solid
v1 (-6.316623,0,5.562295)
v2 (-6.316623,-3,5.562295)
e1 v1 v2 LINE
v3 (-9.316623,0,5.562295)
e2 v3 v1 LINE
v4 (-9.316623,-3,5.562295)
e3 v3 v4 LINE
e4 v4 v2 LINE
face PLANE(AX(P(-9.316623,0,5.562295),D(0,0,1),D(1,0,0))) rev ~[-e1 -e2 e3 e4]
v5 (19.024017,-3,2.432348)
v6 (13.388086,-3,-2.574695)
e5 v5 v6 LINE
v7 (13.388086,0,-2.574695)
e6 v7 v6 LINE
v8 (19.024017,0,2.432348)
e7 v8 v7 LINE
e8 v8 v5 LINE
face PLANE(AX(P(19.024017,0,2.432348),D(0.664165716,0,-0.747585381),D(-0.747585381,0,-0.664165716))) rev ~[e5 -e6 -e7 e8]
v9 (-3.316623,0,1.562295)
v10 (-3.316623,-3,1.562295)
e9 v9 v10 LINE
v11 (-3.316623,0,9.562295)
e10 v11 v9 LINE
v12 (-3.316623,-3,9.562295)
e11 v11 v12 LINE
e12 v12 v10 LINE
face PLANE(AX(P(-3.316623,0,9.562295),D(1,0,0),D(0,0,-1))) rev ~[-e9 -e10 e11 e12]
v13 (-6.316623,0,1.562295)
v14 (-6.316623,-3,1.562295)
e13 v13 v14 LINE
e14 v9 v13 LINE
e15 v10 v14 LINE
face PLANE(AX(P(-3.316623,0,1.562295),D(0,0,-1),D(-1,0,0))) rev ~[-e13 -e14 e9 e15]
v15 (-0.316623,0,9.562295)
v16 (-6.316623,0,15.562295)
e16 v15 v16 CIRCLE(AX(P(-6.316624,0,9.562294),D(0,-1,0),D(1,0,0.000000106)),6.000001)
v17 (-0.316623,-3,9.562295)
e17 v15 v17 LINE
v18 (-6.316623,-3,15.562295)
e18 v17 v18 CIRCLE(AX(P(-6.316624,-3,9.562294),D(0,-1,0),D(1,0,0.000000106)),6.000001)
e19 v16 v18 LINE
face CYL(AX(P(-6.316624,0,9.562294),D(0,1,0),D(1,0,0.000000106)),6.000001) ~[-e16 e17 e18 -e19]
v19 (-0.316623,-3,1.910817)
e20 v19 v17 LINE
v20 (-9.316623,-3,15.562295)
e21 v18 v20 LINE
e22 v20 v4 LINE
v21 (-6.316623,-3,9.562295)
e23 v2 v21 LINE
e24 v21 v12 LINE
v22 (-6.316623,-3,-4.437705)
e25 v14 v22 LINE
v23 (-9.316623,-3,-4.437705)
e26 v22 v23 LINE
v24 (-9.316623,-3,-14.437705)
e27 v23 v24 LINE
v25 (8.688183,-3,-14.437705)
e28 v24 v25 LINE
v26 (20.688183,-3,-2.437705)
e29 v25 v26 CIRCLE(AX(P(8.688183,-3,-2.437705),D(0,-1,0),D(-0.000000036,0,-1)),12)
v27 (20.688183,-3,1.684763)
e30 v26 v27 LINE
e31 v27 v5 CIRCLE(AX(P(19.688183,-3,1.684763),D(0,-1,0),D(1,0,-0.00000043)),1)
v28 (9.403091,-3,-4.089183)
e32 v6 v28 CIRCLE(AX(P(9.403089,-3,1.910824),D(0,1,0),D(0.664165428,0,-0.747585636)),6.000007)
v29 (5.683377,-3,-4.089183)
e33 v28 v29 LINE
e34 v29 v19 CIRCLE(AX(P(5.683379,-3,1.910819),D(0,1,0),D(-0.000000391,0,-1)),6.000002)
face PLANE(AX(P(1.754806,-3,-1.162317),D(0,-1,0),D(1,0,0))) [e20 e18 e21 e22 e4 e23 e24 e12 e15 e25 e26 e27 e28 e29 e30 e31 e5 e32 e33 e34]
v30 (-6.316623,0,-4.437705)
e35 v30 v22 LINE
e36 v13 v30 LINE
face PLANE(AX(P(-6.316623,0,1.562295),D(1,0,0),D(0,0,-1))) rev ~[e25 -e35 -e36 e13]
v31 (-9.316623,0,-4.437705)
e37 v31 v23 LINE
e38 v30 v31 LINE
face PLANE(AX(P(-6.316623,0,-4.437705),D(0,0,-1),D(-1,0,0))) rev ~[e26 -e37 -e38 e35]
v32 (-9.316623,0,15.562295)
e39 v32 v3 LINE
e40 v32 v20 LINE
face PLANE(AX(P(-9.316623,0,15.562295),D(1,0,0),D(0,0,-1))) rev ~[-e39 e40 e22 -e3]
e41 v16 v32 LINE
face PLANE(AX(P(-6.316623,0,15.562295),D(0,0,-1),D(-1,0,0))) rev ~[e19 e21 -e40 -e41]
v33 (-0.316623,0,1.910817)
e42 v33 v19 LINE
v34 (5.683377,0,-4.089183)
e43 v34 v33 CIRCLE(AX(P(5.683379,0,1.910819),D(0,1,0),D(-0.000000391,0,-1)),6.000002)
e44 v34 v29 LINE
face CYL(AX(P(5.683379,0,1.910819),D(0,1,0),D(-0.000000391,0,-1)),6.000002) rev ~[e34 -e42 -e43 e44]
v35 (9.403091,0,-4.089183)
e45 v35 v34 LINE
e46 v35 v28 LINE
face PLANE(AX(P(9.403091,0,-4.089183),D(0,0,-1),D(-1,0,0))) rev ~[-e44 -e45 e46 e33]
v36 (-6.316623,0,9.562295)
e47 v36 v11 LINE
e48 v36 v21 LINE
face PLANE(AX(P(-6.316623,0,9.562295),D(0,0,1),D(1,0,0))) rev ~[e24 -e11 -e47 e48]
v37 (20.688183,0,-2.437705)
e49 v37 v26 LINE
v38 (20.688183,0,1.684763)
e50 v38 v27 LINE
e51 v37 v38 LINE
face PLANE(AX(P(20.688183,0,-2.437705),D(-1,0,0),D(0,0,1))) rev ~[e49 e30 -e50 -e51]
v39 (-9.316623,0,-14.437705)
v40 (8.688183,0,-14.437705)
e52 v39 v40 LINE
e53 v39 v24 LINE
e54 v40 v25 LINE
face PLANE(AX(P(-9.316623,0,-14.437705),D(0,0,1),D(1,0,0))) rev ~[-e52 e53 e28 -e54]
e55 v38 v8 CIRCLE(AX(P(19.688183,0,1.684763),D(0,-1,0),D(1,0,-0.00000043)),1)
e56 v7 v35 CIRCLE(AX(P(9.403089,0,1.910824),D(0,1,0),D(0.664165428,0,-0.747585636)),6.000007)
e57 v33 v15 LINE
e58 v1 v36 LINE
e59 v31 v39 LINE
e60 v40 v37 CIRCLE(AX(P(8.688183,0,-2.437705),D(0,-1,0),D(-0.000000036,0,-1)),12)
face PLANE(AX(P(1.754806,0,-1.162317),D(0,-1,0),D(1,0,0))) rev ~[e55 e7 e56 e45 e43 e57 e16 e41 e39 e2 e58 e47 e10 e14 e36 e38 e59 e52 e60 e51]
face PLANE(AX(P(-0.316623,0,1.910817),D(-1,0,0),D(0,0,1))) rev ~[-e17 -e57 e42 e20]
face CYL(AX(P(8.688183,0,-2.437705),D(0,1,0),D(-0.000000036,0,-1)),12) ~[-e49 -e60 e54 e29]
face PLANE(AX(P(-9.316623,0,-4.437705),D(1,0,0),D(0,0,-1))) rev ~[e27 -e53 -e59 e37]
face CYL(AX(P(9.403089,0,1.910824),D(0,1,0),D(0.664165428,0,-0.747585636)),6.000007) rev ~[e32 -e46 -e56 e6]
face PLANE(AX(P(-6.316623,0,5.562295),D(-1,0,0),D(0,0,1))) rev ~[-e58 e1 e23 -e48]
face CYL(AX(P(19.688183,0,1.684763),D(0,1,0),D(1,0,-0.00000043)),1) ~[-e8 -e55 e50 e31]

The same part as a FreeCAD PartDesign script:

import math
import FreeCAD as App
import Part
import Sketcher

V = App.Vector
Q = App.Units.Quantity

doc = App.newDocument("Part")
body = doc.addObject("PartDesign::Body", "Body")

sketch1 = body.newObject("Sketcher::SketchObject", "Sketch")
sketch1.AttachmentSupport = (doc.getObject("XZ_Plane"), [""])
sketch1.MapMode = "FlatFace"
sketch1.addGeometry([
    Part.LineSegment(V(-9.3, -4.4, 0), V(-9.3, -14.4, 0)),
    Part.LineSegment(V(-9.3, -14.4, 0), V(8.7, -14.4, 0)),
    Part.ArcOfCircle(Part.Circle(V(8.7, -2.4, 0), V(0, 0, 1), 12), math.radians(-90), math.radians(0)),
    Part.LineSegment(V(20.7, -2.4, 0), V(20.7, 1.7, 0)),
    Part.ArcOfCircle(Part.Circle(V(19.7, 1.7, 0), V(0, 0, 1), 1), math.radians(0), math.radians(132)),
    Part.LineSegment(V(19, 2.4, 0), V(13.4, -2.6, 0)),
    Part.ArcOfCircle(Part.Circle(V(9.4, 1.9, 0), V(0, 0, 1), 6), math.radians(-90), math.radians(-48)),
    Part.LineSegment(V(9.4, -4.1, 0), V(5.7, -4.1, 0)),
    Part.ArcOfCircle(Part.Circle(V(5.7, 1.9, 0), V(0, 0, 1), 6), math.radians(-180), math.radians(-90)),
    Part.LineSegment(V(-0.3, 1.9, 0), V(-0.3, 9.6, 0)),
    Part.ArcOfCircle(Part.Circle(V(-6.3, 9.6, 0), V(0, 0, 1), 6), math.radians(0), math.radians(90)),
    Part.LineSegment(V(-6.3, 15.6, 0), V(-9.3, 15.6, 0)),
    Part.LineSegment(V(-9.3, 15.6, 0), V(-9.3, 5.6, 0)),
    Part.LineSegment(V(-9.3, 5.6, 0), V(-6.3, 5.6, 0)),
    Part.LineSegment(V(-6.3, 5.6, 0), V(-6.3, 9.6, 0)),
    Part.LineSegment(V(-6.3, 9.6, 0), V(-3.3, 9.6, 0)),
    Part.LineSegment(V(-3.3, 9.6, 0), V(-3.3, 1.6, 0)),
    Part.LineSegment(V(-3.3, 1.6, 0), V(-6.3, 1.6, 0)),
    Part.LineSegment(V(-6.3, 1.6, 0), V(-6.3, -4.4, 0)),
    Part.LineSegment(V(-6.3, -4.4, 0), V(-9.3, -4.4, 0)),
], False)
sketch1.addConstraint([
    Sketcher.Constraint("Coincident", 0, 2, 1, 1),
    Sketcher.Constraint("Tangent", 1, 2, 2, 1),
    Sketcher.Constraint("Tangent", 2, 2, 3, 1),
    Sketcher.Constraint("Tangent", 3, 2, 4, 1),
    Sketcher.Constraint("Tangent", 4, 2, 5, 1),
    Sketcher.Constraint("Tangent", 5, 2, 6, 2),
    Sketcher.Constraint("Tangent", 6, 1, 7, 1),
    Sketcher.Constraint("Tangent", 7, 2, 8, 2),
    Sketcher.Constraint("Tangent", 8, 1, 9, 1),
    Sketcher.Constraint("Tangent", 9, 2, 10, 1),
    Sketcher.Constraint("Tangent", 10, 2, 11, 1),
    Sketcher.Constraint("Coincident", 11, 2, 12, 1),
    Sketcher.Constraint("Coincident", 12, 2, 13, 1),
    Sketcher.Constraint("Coincident", 13, 2, 14, 1),
    Sketcher.Constraint("Coincident", 14, 2, 15, 1),
    Sketcher.Constraint("Coincident", 15, 2, 16, 1),
    Sketcher.Constraint("Coincident", 16, 2, 17, 1),
    Sketcher.Constraint("Coincident", 17, 2, 18, 1),
    Sketcher.Constraint("Coincident", 18, 2, 19, 1),
    Sketcher.Constraint("Coincident", 19, 2, 0, 1),
    Sketcher.Constraint("Vertical", 0),
    Sketcher.Constraint("Horizontal", 1),
    Sketcher.Constraint("Vertical", 3),
    Sketcher.Constraint("Horizontal", 7),
    Sketcher.Constraint("Vertical", 9),
    Sketcher.Constraint("Horizontal", 11),
    Sketcher.Constraint("Vertical", 12),
    Sketcher.Constraint("Horizontal", 13),
    Sketcher.Constraint("Vertical", 14),
    Sketcher.Constraint("Horizontal", 15),
    Sketcher.Constraint("Vertical", 16),
    Sketcher.Constraint("Horizontal", 17),
    Sketcher.Constraint("Vertical", 18),
    Sketcher.Constraint("Horizontal", 19),
    Sketcher.Constraint("Coincident", 14, 2, 10, 3),
    Sketcher.Constraint("Equal", 8, 10),
    Sketcher.Constraint("Vertical", 0, 2, 11, 2),
    Sketcher.Constraint("Vertical", 14, 2, 17, 2),
    Sketcher.Constraint("Equal", 13, 15),
    Sketcher.Constraint("Equal", 0, 12),
    Sketcher.Constraint("Radius", 2, Q("12 mm")),
    Sketcher.Constraint("Radius", 4, Q("1 mm")),
    Sketcher.Constraint("Radius", 10, Q("6.000001 mm")),
    Sketcher.Constraint("DistanceX", 11, 2, 11, 1, Q("3 mm")),
    Sketcher.Constraint("DistanceY", 0, 2, 0, 1, Q("10 mm")),
    Sketcher.Constraint("DistanceY", 16, 2, 16, 1, Q("8 mm")),
    Sketcher.Constraint("DistanceY", 18, 2, 18, 1, Q("6 mm")),
    Sketcher.Constraint("Radius", 6, Q("6.000007 mm")),
    Sketcher.Constraint("DistanceY", 9, 1, 9, 2, Q("7.651478 mm")),
    Sketcher.Constraint("DistanceX", 1, 1, 1, 2, Q("18.004806 mm")),
    Sketcher.Constraint("DistanceX", 7, 2, 7, 1, Q("3.719714 mm")),
    Sketcher.Constraint("DistanceY", 3, 1, 3, 2, Q("4.122468 mm")),
    Sketcher.Constraint("DistanceX", -1, 1, 6, 3, Q("9.403089 mm")),
    Sketcher.Constraint("DistanceY", -1, 1, 8, 3, Q("1.910819 mm")),
])
pad1 = body.newObject("PartDesign::Pad", "Pad")
pad1.Profile = sketch1
pad1.Length = 3

doc.recompute()
